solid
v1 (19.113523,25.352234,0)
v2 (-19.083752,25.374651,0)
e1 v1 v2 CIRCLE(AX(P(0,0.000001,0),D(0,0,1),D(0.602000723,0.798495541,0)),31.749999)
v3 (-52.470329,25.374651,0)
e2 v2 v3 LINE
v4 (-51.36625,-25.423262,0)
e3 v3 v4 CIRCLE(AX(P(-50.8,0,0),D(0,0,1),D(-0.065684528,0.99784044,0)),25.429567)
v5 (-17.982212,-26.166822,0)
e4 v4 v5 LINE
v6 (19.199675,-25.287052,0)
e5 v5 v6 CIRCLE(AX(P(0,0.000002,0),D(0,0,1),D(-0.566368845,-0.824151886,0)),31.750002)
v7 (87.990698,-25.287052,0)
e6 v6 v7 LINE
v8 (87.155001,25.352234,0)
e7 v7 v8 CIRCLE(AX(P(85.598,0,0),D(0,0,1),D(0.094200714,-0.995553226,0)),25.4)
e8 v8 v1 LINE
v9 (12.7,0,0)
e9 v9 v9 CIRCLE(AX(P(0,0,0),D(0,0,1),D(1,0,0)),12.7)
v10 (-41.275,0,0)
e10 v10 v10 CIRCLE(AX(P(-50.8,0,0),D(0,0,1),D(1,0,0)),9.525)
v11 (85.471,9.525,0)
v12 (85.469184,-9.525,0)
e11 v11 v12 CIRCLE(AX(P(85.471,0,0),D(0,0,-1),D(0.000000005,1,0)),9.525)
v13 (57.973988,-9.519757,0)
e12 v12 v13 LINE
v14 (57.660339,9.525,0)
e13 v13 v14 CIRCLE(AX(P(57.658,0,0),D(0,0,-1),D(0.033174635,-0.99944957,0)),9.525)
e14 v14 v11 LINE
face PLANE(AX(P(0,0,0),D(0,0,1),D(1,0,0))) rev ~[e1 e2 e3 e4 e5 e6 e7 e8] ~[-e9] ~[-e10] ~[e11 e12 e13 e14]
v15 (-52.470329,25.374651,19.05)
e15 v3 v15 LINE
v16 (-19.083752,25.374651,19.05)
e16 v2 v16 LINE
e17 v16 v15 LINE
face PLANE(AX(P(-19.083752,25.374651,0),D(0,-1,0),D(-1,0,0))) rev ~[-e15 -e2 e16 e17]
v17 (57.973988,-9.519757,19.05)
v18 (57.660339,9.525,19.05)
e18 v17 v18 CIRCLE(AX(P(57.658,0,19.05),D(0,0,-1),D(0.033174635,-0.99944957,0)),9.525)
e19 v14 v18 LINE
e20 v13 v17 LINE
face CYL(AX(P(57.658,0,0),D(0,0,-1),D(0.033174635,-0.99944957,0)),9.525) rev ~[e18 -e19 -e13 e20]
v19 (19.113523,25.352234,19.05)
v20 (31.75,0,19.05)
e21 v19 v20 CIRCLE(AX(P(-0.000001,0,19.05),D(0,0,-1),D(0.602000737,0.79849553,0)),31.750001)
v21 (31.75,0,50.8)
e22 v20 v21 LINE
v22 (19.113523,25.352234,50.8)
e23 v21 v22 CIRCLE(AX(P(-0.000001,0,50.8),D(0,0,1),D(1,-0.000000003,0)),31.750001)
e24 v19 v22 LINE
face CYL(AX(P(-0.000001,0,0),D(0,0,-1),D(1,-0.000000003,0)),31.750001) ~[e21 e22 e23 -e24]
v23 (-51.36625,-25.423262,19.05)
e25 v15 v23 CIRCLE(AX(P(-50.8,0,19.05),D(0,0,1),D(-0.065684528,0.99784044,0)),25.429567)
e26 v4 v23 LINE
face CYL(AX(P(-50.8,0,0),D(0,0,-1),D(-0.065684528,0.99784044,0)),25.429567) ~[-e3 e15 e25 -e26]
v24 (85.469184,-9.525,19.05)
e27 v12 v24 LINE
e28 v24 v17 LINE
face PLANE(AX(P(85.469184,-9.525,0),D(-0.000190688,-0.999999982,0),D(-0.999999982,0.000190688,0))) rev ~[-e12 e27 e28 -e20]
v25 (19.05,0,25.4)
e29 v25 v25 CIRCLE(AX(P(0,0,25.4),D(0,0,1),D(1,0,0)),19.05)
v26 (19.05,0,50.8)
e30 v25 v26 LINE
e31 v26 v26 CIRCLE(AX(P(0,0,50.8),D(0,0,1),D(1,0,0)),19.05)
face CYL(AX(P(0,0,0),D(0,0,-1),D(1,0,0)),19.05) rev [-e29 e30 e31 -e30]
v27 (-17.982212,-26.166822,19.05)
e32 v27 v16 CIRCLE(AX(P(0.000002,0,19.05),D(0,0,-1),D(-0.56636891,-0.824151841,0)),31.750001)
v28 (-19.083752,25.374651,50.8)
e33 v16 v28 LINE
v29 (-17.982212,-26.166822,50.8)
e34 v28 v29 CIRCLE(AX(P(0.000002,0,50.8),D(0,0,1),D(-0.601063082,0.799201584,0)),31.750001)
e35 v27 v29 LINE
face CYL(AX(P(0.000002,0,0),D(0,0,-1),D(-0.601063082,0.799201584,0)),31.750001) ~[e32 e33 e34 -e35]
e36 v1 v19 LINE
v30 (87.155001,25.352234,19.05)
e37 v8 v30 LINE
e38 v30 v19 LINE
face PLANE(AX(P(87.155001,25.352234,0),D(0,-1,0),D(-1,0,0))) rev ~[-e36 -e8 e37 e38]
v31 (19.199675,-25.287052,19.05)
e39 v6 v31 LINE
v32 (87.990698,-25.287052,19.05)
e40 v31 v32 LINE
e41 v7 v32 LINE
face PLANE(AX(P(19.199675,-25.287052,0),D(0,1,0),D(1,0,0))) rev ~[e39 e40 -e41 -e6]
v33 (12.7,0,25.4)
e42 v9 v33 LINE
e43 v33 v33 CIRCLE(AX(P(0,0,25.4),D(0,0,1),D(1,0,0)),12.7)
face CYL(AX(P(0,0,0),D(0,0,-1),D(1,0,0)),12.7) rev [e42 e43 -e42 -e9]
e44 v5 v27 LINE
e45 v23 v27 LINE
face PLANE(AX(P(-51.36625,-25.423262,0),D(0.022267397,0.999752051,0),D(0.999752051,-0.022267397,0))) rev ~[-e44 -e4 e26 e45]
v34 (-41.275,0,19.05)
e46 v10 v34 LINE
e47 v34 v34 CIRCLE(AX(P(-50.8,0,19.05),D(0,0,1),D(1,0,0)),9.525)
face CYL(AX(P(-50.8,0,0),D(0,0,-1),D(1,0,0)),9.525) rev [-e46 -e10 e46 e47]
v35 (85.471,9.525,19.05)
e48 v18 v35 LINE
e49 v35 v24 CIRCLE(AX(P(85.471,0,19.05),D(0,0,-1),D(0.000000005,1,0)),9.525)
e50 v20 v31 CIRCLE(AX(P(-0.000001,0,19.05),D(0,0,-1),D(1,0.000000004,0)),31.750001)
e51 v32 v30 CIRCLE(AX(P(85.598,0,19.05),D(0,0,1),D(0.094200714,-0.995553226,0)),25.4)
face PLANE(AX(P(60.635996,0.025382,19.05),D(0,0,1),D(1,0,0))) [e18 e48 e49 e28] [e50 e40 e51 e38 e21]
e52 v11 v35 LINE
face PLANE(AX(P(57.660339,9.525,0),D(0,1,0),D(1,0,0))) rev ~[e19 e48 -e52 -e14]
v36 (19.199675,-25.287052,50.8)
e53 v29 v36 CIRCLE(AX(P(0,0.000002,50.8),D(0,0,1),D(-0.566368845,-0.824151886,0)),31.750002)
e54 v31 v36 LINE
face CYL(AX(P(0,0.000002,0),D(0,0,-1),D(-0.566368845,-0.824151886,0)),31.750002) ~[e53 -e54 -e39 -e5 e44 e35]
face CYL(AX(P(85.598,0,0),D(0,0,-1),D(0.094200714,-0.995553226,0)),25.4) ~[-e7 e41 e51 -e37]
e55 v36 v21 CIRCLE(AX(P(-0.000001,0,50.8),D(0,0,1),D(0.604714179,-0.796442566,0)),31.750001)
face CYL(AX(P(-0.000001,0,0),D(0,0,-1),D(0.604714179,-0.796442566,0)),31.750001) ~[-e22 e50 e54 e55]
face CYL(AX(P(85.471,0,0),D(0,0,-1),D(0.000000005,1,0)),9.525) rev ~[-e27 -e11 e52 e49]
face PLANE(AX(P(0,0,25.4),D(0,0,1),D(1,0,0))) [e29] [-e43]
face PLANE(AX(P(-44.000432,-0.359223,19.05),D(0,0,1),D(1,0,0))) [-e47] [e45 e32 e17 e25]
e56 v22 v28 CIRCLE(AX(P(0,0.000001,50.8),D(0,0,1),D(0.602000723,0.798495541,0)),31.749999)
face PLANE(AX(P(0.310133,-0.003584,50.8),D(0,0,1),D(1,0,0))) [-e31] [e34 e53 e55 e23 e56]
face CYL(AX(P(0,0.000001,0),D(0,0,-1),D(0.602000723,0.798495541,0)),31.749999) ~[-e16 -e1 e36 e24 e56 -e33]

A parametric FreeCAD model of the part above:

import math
import FreeCAD as App
import Part
import Sketcher
from FreeCAD import Vector
Q = App.Units.Quantity

doc = App.newDocument("Part")
params = doc.addObject("Spreadsheet::Sheet", "Params")
for row, (alias, value) in enumerate([
    ("sketch1_diameter", "1.5 in"),
    ("sketch1_radius", "1.25 in"),
    ("pad1_length", "2 in"),
    ("sketch2_radius", "1 in"),
    ("sketch2_diameter", "0.75 in"),
    ("sketch2_radius2", "1.25 in"),
    ("pad2_length", "0.75 in"),
    ("sketch3_diameter", "1 in"),
    ("sketch3_diameter2", "1.5 in"),
    ("pad3_length", "1 in"),
], start=1):
    params.set(f"A{row}", alias)
    params.set(f"B{row}", "=" + value)
    params.setAlias(f"B{row}", alias)

body = doc.addObject("PartDesign::Body", "Body")

sketch1 = body.newObject("Sketcher::SketchObject", "Sketch")
sketch1.AttachmentSupport = (doc.getObject("XY_Plane"), [""])
sketch1.MapMode = "FlatFace"
sketch1.addGeometry([
    Part.ArcOfCircle(Part.Circle(Vector(0, 0, 0), Vector(0, 0, 1), 32), math.radians(-53), math.radians(0)),
    Part.ArcOfCircle(Part.Circle(Vector(0, 0, 0), Vector(0, 0, 1), 32), math.radians(0), math.radians(53)),
    Part.ArcOfCircle(Part.Circle(Vector(0, 0, 0), Vector(0, 0, 1), 32), math.radians(53), math.radians(127)),
    Part.ArcOfCircle(Part.Circle(Vector(0, 0, 0), Vector(0, 0, 1), 32), math.radians(127), math.radians(236)),
    Part.ArcOfCircle(Part.Circle(Vector(0, 0, 0), Vector(0, 0, 1), 32), math.radians(-124), math.radians(-53)),
    Part.Circle(Vector(0, 0, 0), Vector(0, 0, 1), 19),
], False)
sketch1.addConstraint([
    Sketcher.Constraint("Tangent", 0, 2, 1, 1),
    Sketcher.Constraint("Tangent", 1, 2, 2, 1),
    Sketcher.Constraint("Tangent", 2, 2, 3, 1),
    Sketcher.Constraint("Tangent", 3, 2, 4, 1),
    Sketcher.Constraint("Tangent", 4, 2, 0, 1),
    Sketcher.Constraint("Coincident", 0, 3, -1, 1),
    Sketcher.Constraint("Coincident", 2, 3, -1, 1),
    Sketcher.Constraint("Coincident", 5, 3, -1, 1),
    Sketcher.Constraint("PointOnObject", 0, 2, -1),
    Sketcher.Constraint("Diameter", 5, Q("1.5 in")),
    Sketcher.Constraint("Radius", 0, Q("1.25 in")),
    Sketcher.Constraint("DistanceX", 2, 2, -1, 1, Q("19.083752 mm")),
    Sketcher.Constraint("DistanceX", 3, 2, -1, 1, Q("17.982212 mm")),
    Sketcher.Constraint("DistanceY", 4, 2, -1, 1, Q("25.287052 mm")),
    Sketcher.Constraint("DistanceX", 3, 3, 1, 2, Q("19.113521 mm")),
])
sketch1.setExpression("Constraints[9]", "Params.sketch1_diameter")
sketch1.setExpression("Constraints[10]", "Params.sketch1_radius")
pad1 = body.newObject("PartDesign::Pad", "Pad")
pad1.Profile = sketch1
pad1.setExpression("Length", "Params.pad1_length")

sketch2 = body.newObject("Sketcher::SketchObject", "Sketch001")
sketch2.AttachmentSupport = (doc.getObject("XY_Plane"), [""])
sketch2.MapMode = "FlatFace"
sketch2.addGeometry([
    Part.ArcOfCircle(Part.Circle(Vector(0, 0, 0), Vector(0, 0, 1), 32), math.radians(127), math.radians(236)),
    Part.LineSegment(Vector(-19, 25, 0), Vector(-52, 25, 0)),
    Part.ArcOfCircle(Part.Circle(Vector(-51, 0, 0), Vector(0, 0, 1), 25), math.radians(94), math.radians(269)),
    Part.LineSegment(Vector(-51, -25, 0), Vector(-18, -26, 0)),
    Part.Circle(Vector(-51, 0, 0), Vector(0, 0, 1), 10),
    Part.ArcOfCircle(Part.Circle(Vector(0, 0, 0), Vector(0, 0, 1), 32), math.radians(0), math.radians(53)),
    Part.ArcOfCircle(Part.Circle(Vector(0, 0, 0), Vector(0, 0, 1), 32), math.radians(-53), math.radians(0)),
    Part.LineSegment(Vector(19, -25, 0), Vector(88, -25, 0)),
    Part.ArcOfCircle(Part.Circle(Vector(86, 0, 0), Vector(0, 0, 1), 25), math.radians(-85), math.radians(86)),
    Part.LineSegment(Vector(87, 25, 0), Vector(19, 25, 0)),
    Part.LineSegment(Vector(58, 10, 0), Vector(85, 10, 0)),
    Part.ArcOfCircle(Part.Circle(Vector(85, 0, 0), Vector(0, 0, 1), 10), math.radians(-90), math.radians(90)),
    Part.LineSegment(Vector(85, -10, 0), Vector(58, -10, 0)),
    Part.ArcOfCircle(Part.Circle(Vector(58, 0, 0), Vector(0, 0, 1), 10), math.radians(90), math.radians(272)),
], False)
sketch2.addConstraint([
    Sketcher.Constraint("Coincident", 0, 1, 1, 1),
    Sketcher.Constraint("Coincident", 1, 2, 2, 1),
    Sketcher.Constraint("Tangent", 2, 2, 3, 1),
    Sketcher.Constraint("Coincident", 3, 2, 0, 2),
    Sketcher.Constraint("Tangent", 5, 1, 6, 2),
    Sketcher.Constraint("Coincident", 6, 1, 7, 1),
    Sketcher.Constraint("Coincident", 7, 2, 8, 1),
    Sketcher.Constraint("Coincident", 8, 2, 9, 1),
    Sketcher.Constraint("Coincident", 9, 2, 5, 2),
    Sketcher.Constraint("Tangent", 10, 2, 11, 2),
    Sketcher.Constraint("Tangent", 11, 1, 12, 1),
    Sketcher.Constraint("Coincident", 12, 2, 13, 2),
    Sketcher.Constraint("Coincident", 13, 1, 10, 1),
    Sketcher.Constraint("Horizontal", 1),
    Sketcher.Constraint("Horizontal", 7),
    Sketcher.Constraint("Horizontal", 9),
    Sketcher.Constraint("Horizontal", 10),
    Sketcher.Constraint("Coincident", 0, 3, -1, 1),
    Sketcher.Constraint("Coincident", 5, 3, -1, 1),
    Sketcher.Constraint("Coincident", 4, 3, 2, 3),
    Sketcher.Constraint("Equal", 0, 5),
    Sketcher.Constraint("Equal", 5, 6),
    Sketcher.Constraint("Equal", 4, 11),
    Sketcher.Constraint("Equal", 11, 13),
    Sketcher.Constraint("PointOnObject", 2, 3, -1),
    Sketcher.Constraint("PointOnObject", 8, 3, -1),
    Sketcher.Constraint("PointOnObject", 11, 3, -1),
    Sketcher.Constraint("PointOnObject", 5, 1, -1),
    Sketcher.Constraint("Radius", 8, Q("1 in")),
    Sketcher.Constraint("Diameter", 4, Q("0.75 in")),
    Sketcher.Constraint("Radius", 0, Q("1.25 in")),
    Sketcher.Constraint("DistanceX", 2, 3, -1, 1, Q("2 in")),
    Sketcher.Constraint("DistanceX", 13, 3, 8, 3, Q("1.1 in")),
    Sketcher.Constraint("DistanceX", -1, 1, 8, 3, Q("3.37 in")),
    Sketcher.Constraint("DistanceX", -1, 1, 11, 3, Q("3.365 in")),
    Sketcher.Constraint("Radius", 2, Q("25.429567 mm")),
    Sketcher.Constraint("DistanceX", 10, 1, 10, 2, Q("27.810661 mm")),
    Sketcher.Constraint("DistanceX", -1, 1, 8, 2, Q("87.155001 mm")),
    Sketcher.Constraint("DistanceX", 8, 3, 7, 2, Q("2.392698 mm")),
    Sketcher.Constraint("DistanceX", 1, 2, 1, 1, Q("33.386577 mm")),
    Sketcher.Constraint("DistanceX", 2, 2, -1, 1, Q("51.36625 mm")),
    Sketcher.Constraint("DistanceX", 13, 3, 12, 2, Q("0.315988 mm")),
])
sketch2.setExpression("Constraints[28]", "Params.sketch2_radius")
sketch2.setExpression("Constraints[29]", "Params.sketch2_diameter")
sketch2.setExpression("Constraints[30]", "Params.sketch2_radius2")
pad2 = body.newObject("PartDesign::Pad", "Pad001")
pad2.Profile = sketch2
pad2.setExpression("Length", "Params.pad2_length")

sketch3 = body.newObject("Sketcher::SketchObject", "Sketch002")
sketch3.AttachmentSupport = (doc.getObject("XY_Plane"), [""])
sketch3.MapMode = "FlatFace"
sketch3.addGeometry([
    Part.Circle(Vector(0, 0, 0), Vector(0, 0, 1), 19),
    Part.Circle(Vector(0, 0, 0), Vector(0, 0, 1), 13),
], False)
sketch3.addConstraint([
    Sketcher.Constraint("Coincident", 0, 3, -1, 1),
    Sketcher.Constraint("Coincident", 1, 3, -1, 1),
    Sketcher.Constraint("Diameter", 1, Q("1 in")),
    Sketcher.Constraint("Diameter", 0, Q("1.5 in")),
])
sketch3.setExpression("Constraints[2]", "Params.sketch3_diameter")
sketch3.setExpression("Constraints[3]", "Params.sketch3_diameter2")
pad3 = body.newObject("PartDesign::Pad", "Pad002")
pad3.Profile = sketch3
pad3.setExpression("Length", "Params.pad3_length")

doc.recompute()
